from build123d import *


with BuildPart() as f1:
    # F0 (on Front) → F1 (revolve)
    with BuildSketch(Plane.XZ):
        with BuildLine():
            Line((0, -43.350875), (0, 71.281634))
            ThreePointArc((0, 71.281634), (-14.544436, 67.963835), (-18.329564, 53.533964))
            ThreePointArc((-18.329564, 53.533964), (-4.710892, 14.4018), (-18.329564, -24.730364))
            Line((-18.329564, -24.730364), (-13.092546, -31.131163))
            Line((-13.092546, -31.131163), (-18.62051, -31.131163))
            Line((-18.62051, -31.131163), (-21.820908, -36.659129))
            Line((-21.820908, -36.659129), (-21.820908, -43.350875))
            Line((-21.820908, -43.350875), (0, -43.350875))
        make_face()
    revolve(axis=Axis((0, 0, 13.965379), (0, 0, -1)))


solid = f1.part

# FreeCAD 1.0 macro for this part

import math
import FreeCAD as App
import Part
import Sketcher
Q = App.Units.Quantity

doc = App.newDocument("Part")
params = doc.addObject("Spreadsheet::Sheet", "Params")
for row, (alias, value) in enumerate([
    ("revolution_angle", "360 deg"),
], start=1):
    params.set(f"A{row}", alias)
    params.set(f"B{row}", "=" + value)
    params.setAlias(f"B{row}", alias)

body = doc.addObject("PartDesign::Body", "Body")

# Sketch on XZ plane
sketch1 = body.newObject("Sketcher::SketchObject", "Sketch")
sketch1.AttachmentSupport = (doc.getObject("XZ_Plane"), [""])
sketch1.MapMode = "FlatFace"
sketch1.addGeometry(Part.LineSegment(App.Vector(0, -43, 0), App.Vector(0, 71, 0)), False)
sketch1.addGeometry(Part.ArcOfCircle(Part.Circle(App.Vector(-5, 58, 0), App.Vector(0, 0, 1), 14), math.radians(72), math.radians(197)), False)
sketch1.addGeometry(Part.ArcOfCircle(Part.Circle(App.Vector(-68, 14, 0), App.Vector(0, 0, 1), 63), math.radians(-38), math.radians(38)), False)
sketch1.addGeometry(Part.LineSegment(App.Vector(-18, -25, 0), App.Vector(-13, -31, 0)), False)
sketch1.addGeometry(Part.LineSegment(App.Vector(-13, -31, 0), App.Vector(-19, -31, 0)), False)
sketch1.addGeometry(Part.LineSegment(App.Vector(-19, -31, 0), App.Vector(-22, -37, 0)), False)
sketch1.addGeometry(Part.LineSegment(App.Vector(-22, -37, 0), App.Vector(-22, -43, 0)), False)
sketch1.addGeometry(Part.LineSegment(App.Vector(-22, -43, 0), App.Vector(0, -43, 0)), False)
sketch1.addConstraint(Sketcher.Constraint("Coincident", 0, 2, 1, 1))
sketch1.addConstraint(Sketcher.Constraint("Coincident", 1, 2, 2, 2))
sketch1.addConstraint(Sketcher.Constraint("Coincident", 2, 1, 3, 1))
sketch1.addConstraint(Sketcher.Constraint("Coincident", 3, 2, 4, 1))
sketch1.addConstraint(Sketcher.Constraint("Coincident", 4, 2, 5, 1))
sketch1.addConstraint(Sketcher.Constraint("Coincident", 5, 2, 6, 1))
sketch1.addConstraint(Sketcher.Constraint("Coincident", 6, 2, 7, 1))
sketch1.addConstraint(Sketcher.Constraint("Coincident", 7, 2, 0, 1))
sketch1.addConstraint(Sketcher.Constraint("Vertical", 0))
sketch1.addConstraint(Sketcher.Constraint("Horizontal", 4))
sketch1.addConstraint(Sketcher.Constraint("Vertical", 6))
sketch1.addConstraint(Sketcher.Constraint("Horizontal", 7))
sketch1.addConstraint(Sketcher.Constraint("PointOnObject", 0, 2, -2))
sketch1.addConstraint(Sketcher.Constraint("Vertical", 1, 2, 2, 1))
sketch1.addConstraint(Sketcher.Constraint("Radius", 1, Q("14.388211 mm")))
sketch1.addConstraint(Sketcher.Constraint("Radius", 2, Q("63.030907 mm")))
sketch1.addConstraint(Sketcher.Constraint("DistanceY", 2, 1, 0, 2, Q("96.011998 mm")))
sketch1.addConstraint(Sketcher.Constraint("DistanceY", 0, 1, 0, 2, Q("114.632509 mm")))
sketch1.addConstraint(Sketcher.Constraint("DistanceX", 2, 3, -1, 1, Q("67.741799 mm")))
sketch1.addConstraint(Sketcher.Constraint("DistanceY", -1, 1, 2, 3, Q("14.4018 mm")))
sketch1.addConstraint(Sketcher.Constraint("DistanceY", 3, 2, 2, 1, Q("6.400799 mm")))
sketch1.addConstraint(Sketcher.Constraint("DistanceX", 4, 2, 4, 1, Q("5.527964 mm")))
sketch1.addConstraint(Sketcher.Constraint("DistanceX", 7, 1, 7, 2, Q("21.820908 mm")))
sketch1.addConstraint(Sketcher.Constraint("DistanceY", 6, 2, 6, 1, Q("6.691746 mm")))
sketch1.addConstraint(Sketcher.Constraint("DistanceY", -1, 1, 1, 3, Q("57.627081 mm")))
sketch1.addConstraint(Sketcher.Constraint("DistanceX", 4, 2, -1, 1, Q("18.62051 mm")))
revolution = body.newObject("PartDesign::Revolution", "Revolution")
revolution.Profile = sketch1
revolution.ReferenceAxis = (sketch1, ["V_Axis"])
revolution.setExpression("Angle", "Params.revolution_angle")

doc.recompute()
